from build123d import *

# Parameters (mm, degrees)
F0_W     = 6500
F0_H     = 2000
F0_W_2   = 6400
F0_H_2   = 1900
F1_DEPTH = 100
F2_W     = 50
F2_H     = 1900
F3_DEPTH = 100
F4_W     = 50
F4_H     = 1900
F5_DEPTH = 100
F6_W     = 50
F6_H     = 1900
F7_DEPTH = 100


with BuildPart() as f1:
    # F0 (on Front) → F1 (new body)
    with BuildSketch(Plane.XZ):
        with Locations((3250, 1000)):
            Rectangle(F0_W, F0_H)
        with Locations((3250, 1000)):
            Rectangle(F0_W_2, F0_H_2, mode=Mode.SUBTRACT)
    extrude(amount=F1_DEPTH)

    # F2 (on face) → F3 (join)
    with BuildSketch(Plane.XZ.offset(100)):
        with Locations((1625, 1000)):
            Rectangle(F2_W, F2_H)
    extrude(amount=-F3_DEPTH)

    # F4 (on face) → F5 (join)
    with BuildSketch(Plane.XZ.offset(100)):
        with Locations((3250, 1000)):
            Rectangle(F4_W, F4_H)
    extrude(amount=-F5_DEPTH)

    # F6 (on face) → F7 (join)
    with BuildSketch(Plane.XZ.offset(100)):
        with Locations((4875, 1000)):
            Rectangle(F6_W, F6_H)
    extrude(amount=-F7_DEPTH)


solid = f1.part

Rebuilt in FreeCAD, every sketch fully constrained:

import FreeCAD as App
import Part
import Sketcher
from FreeCAD import Vector
Q = App.Units.Quantity

doc = App.newDocument("Part")
body = doc.addObject("PartDesign::Body", "Body")

# Sketch on XZ plane
sketch1 = body.newObject("Sketcher::SketchObject", "Sketch")
sketch1.AttachmentSupport = (doc.getObject("XZ_Plane"), [""])
sketch1.MapMode = "FlatFace"
sketch1.addGeometry([
    Part.LineSegment(Vector(0, 2000, 0), Vector(0, 0, 0)),  # 0
    Part.LineSegment(Vector(0, 0, 0), Vector(6500, 0, 0)),  # 1
    Part.LineSegment(Vector(6500, 0, 0), Vector(6500, 2000, 0)),  # 2
    Part.LineSegment(Vector(6500, 2000, 0), Vector(0, 2000, 0)),  # 3
    Part.LineSegment(Vector(6450, 50, 0), Vector(50, 50, 0)),  # 4
    Part.LineSegment(Vector(50, 50, 0), Vector(50, 1950, 0)),  # 5
    Part.LineSegment(Vector(50, 1950, 0), Vector(6450, 1950, 0)),  # 6
    Part.LineSegment(Vector(6450, 1950, 0), Vector(6450, 50, 0)),  # 7
], False)
sketch1.addConstraint([
    Sketcher.Constraint("Coincident", 0, 2, 1, 1),
    Sketcher.Constraint("Coincident", 1, 2, 2, 1),
    Sketcher.Constraint("Coincident", 2, 2, 3, 1),
    Sketcher.Constraint("Coincident", 3, 2, 0, 1),
    Sketcher.Constraint("Coincident", 4, 2, 5, 1),
    Sketcher.Constraint("Coincident", 5, 2, 6, 1),
    Sketcher.Constraint("Coincident", 6, 2, 7, 1),
    Sketcher.Constraint("Coincident", 7, 2, 4, 1),
    Sketcher.Constraint("Vertical", 0),
    Sketcher.Constraint("Horizontal", 1),
    Sketcher.Constraint("Vertical", 2),
    Sketcher.Constraint("Horizontal", 3),
    Sketcher.Constraint("Horizontal", 4),
    Sketcher.Constraint("Vertical", 5),
    Sketcher.Constraint("Horizontal", 6),
    Sketcher.Constraint("Vertical", 7),
    Sketcher.Constraint("Coincident", 0, 2, -1, 1),
    Sketcher.Constraint("DistanceX", 1, 1, 1, 2, Q("6500 mm")),
    Sketcher.Constraint("DistanceX", 4, 2, 4, 1, Q("6400 mm")),
    Sketcher.Constraint("DistanceY", 0, 2, 0, 1, Q("2000 mm")),
    Sketcher.Constraint("DistanceY", 5, 1, 5, 2, Q("1900 mm")),
    Sketcher.Constraint("DistanceX", -1, 1, 4, 2, Q("50 mm")),
    Sketcher.Constraint("DistanceY", -1, 1, 4, 2, Q("50 mm")),
])
pad1 = body.newObject("PartDesign::Pad", "Pad")
pad1.Profile = sketch1
pad1.Length = 100

# Sketch on XZ plane
sketch2 = body.newObject("Sketcher::SketchObject", "Sketch001")
sketch2.AttachmentSupport = (doc.getObject("XZ_Plane"), [""])
sketch2.MapMode = "FlatFace"
sketch2.AttachmentOffset = App.Placement(Vector(0, 0, 100), App.Rotation())
sketch2.addGeometry([
    Part.LineSegment(Vector(1600, 1950, 0), Vector(1600, 50, 0)),
    Part.LineSegment(Vector(1600, 50, 0), Vector(1650, 50, 0)),
    Part.LineSegment(Vector(1650, 50, 0), Vector(1650, 1950, 0)),
    Part.LineSegment(Vector(1650, 1950, 0), Vector(1600, 1950, 0)),
], False)
sketch2.addConstraint([
    Sketcher.Constraint("Coincident", 0, 2, 1, 1),
    Sketcher.Constraint("Coincident", 1, 2, 2, 1),
    Sketcher.Constraint("Coincident", 2, 2, 3, 1),
    Sketcher.Constraint("Coincident", 3, 2, 0, 1),
    Sketcher.Constraint("Vertical", 0),
    Sketcher.Constraint("Horizontal", 1),
    Sketcher.Constraint("Vertical", 2),
    Sketcher.Constraint("Horizontal", 3),
    Sketcher.Constraint("DistanceX", 1, 1, 1, 2, Q("50 mm")),
    Sketcher.Constraint("DistanceY", 0, 2, 0, 1, Q("1900 mm")),
    Sketcher.Constraint("DistanceX", -1, 1, 0, 2, Q("1600 mm")),
    Sketcher.Constraint("DistanceY", -1, 1, 0, 2, Q("50 mm")),
])
pad2 = body.newObject("PartDesign::Pad", "Pad001")
pad2.Profile = sketch2
pad2.Length = 100
pad2.Reversed = True

# Sketch on XZ plane
sketch3 = body.newObject("Sketcher::SketchObject", "Sketch002")
sketch3.AttachmentSupport = (doc.getObject("XZ_Plane"), [""])
sketch3.MapMode = "FlatFace"
sketch3.AttachmentOffset = App.Placement(Vector(0, 0, 100), App.Rotation())
sketch3.addGeometry([
    Part.LineSegment(Vector(3225, 1950, 0), Vector(3225, 50, 0)),
    Part.LineSegment(Vector(3225, 50, 0), Vector(3275, 50, 0)),
    Part.LineSegment(Vector(3275, 50, 0), Vector(3275, 1950, 0)),
    Part.LineSegment(Vector(3275, 1950, 0), Vector(3225, 1950, 0)),
], False)
sketch3.addConstraint([
    Sketcher.Constraint("Coincident", 0, 2, 1, 1),
    Sketcher.Constraint("Coincident", 1, 2, 2, 1),
    Sketcher.Constraint("Coincident", 2, 2, 3, 1),
    Sketcher.Constraint("Coincident", 3, 2, 0, 1),
    Sketcher.Constraint("Vertical", 0),
    Sketcher.Constraint("Horizontal", 1),
    Sketcher.Constraint("Vertical", 2),
    Sketcher.Constraint("Horizontal", 3),
    Sketcher.Constraint("DistanceX", 1, 1, 1, 2, Q("50 mm")),
    Sketcher.Constraint("DistanceY", 0, 2, 0, 1, Q("1900 mm")),
    Sketcher.Constraint("DistanceX", -1, 1, 0, 2, Q("3225 mm")),
    Sketcher.Constraint("DistanceY", -1, 1, 0, 2, Q("50 mm")),
])
pad3 = body.newObject("PartDesign::Pad", "Pad002")
pad3.Profile = sketch3
pad3.Length = 100
pad3.Reversed = True

# Sketch on XZ plane
sketch4 = body.newObject("Sketcher::SketchObject", "Sketch003")
sketch4.AttachmentSupport = (doc.getObject("XZ_Plane"), [""])
sketch4.MapMode = "FlatFace"
sketch4.AttachmentOffset = App.Placement(Vector(0, 0, 100), App.Rotation())
sketch4.addGeometry([
    Part.LineSegment(Vector(4850, 1950, 0), Vector(4850, 50, 0)),
    Part.LineSegment(Vector(4850, 50, 0), Vector(4900, 50, 0)),
    Part.LineSegment(Vector(4900, 50, 0), Vector(4900, 1950, 0)),
    Part.LineSegment(Vector(4900, 1950, 0), Vector(4850, 1950, 0)),
], False)
sketch4.addConstraint([
    Sketcher.Constraint("Coincident", 0, 2, 1, 1),
    Sketcher.Constraint("Coincident", 1, 2, 2, 1),
    Sketcher.Constraint("Coincident", 2, 2, 3, 1),
    Sketcher.Constraint("Coincident", 3, 2, 0, 1),
    Sketcher.Constraint("Vertical", 0),
    Sketcher.Constraint("Horizontal", 1),
    Sketcher.Constraint("Vertical", 2),
    Sketcher.Constraint("Horizontal", 3),
    Sketcher.Constraint("DistanceX", 1, 1, 1, 2, Q("50 mm")),
    Sketcher.Constraint("DistanceY", 0, 2, 0, 1, Q("1900 mm")),
    Sketcher.Constraint("DistanceX", -1, 1, 0, 2, Q("4850 mm")),
    Sketcher.Constraint("DistanceY", -1, 1, 0, 2, Q("50 mm")),
])
pad4 = body.newObject("PartDesign::Pad", "Pad003")
pad4.Profile = sketch4
pad4.Length = 100
pad4.Reversed = True

doc.recompute()
